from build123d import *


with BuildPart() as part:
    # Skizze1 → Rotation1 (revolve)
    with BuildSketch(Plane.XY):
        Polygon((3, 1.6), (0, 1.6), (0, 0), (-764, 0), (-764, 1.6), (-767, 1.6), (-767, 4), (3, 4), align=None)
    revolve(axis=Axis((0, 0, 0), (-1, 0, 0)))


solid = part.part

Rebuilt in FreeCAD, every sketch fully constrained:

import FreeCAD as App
import Part
import Sketcher
Q = App.Units.Quantity


def add_polygon(sketch, points):
    """Adds a closed chain of lines whose ends are joined by coincident constraints."""
    first, n = sketch.GeometryCount, len(points)
    for a, b in zip(points, points[1:] + points[:1]):
        sketch.addGeometry(Part.LineSegment(App.Vector(*a, 0), App.Vector(*b, 0)), False)
    for i in range(n):
        sketch.addConstraint(Sketcher.Constraint("Coincident", first + i, 2, first + (i + 1) % n, 1))

doc = App.newDocument("Part")
body = doc.addObject("PartDesign::Body", "Body")

sketch1 = doc.addObject("Sketcher::SketchObject", "Sketch")
body.addObject(sketch1)
sketch1.AttachmentSupport = (doc.XY_Plane, [""])
sketch1.MapMode = "FlatFace"
add_polygon(sketch1, [(0, 1.6), (3, 1.6), (3, 4), (-767, 4), (-767, 1.6), (-764, 1.6), (-764, 0), (0, 0)])
sketch1.addConstraint(Sketcher.Constraint("Horizontal", 0))
sketch1.addConstraint(Sketcher.Constraint("Vertical", 1))
sketch1.addConstraint(Sketcher.Constraint("Horizontal", 2))
sketch1.addConstraint(Sketcher.Constraint("Vertical", 3))
sketch1.addConstraint(Sketcher.Constraint("Horizontal", 4))
sketch1.addConstraint(Sketcher.Constraint("Vertical", 5))
sketch1.addConstraint(Sketcher.Constraint("Horizontal", 6))
sketch1.addConstraint(Sketcher.Constraint("Vertical", 7))
sketch1.addConstraint(Sketcher.Constraint("Coincident", 6, 2, -1, 1))
sketch1.addConstraint(Sketcher.Constraint("Horizontal", 0, 2, 3, 2))
sketch1.addConstraint(Sketcher.Constraint("Equal", 0, 4))
sketch1.addConstraint(Sketcher.Constraint("DistanceX", 0, 1, 0, 2, Q("3 mm")))
sketch1.addConstraint(Sketcher.Constraint("DistanceX", 2, 2, 2, 1, Q("770 mm")))
sketch1.addConstraint(Sketcher.Constraint("DistanceY", 1, 1, 1, 2, Q("2.4 mm")))
sketch1.addConstraint(Sketcher.Constraint("DistanceY", 5, 2, 5, 1, Q("1.6 mm")))
revolution = doc.addObject("PartDesign::Revolution", "Revolution")
body.addObject(revolution)
revolution.Profile = sketch1
revolution.ReferenceAxis = (sketch1, ["H_Axis"])
revolution.Angle = 360

doc.recompute()
